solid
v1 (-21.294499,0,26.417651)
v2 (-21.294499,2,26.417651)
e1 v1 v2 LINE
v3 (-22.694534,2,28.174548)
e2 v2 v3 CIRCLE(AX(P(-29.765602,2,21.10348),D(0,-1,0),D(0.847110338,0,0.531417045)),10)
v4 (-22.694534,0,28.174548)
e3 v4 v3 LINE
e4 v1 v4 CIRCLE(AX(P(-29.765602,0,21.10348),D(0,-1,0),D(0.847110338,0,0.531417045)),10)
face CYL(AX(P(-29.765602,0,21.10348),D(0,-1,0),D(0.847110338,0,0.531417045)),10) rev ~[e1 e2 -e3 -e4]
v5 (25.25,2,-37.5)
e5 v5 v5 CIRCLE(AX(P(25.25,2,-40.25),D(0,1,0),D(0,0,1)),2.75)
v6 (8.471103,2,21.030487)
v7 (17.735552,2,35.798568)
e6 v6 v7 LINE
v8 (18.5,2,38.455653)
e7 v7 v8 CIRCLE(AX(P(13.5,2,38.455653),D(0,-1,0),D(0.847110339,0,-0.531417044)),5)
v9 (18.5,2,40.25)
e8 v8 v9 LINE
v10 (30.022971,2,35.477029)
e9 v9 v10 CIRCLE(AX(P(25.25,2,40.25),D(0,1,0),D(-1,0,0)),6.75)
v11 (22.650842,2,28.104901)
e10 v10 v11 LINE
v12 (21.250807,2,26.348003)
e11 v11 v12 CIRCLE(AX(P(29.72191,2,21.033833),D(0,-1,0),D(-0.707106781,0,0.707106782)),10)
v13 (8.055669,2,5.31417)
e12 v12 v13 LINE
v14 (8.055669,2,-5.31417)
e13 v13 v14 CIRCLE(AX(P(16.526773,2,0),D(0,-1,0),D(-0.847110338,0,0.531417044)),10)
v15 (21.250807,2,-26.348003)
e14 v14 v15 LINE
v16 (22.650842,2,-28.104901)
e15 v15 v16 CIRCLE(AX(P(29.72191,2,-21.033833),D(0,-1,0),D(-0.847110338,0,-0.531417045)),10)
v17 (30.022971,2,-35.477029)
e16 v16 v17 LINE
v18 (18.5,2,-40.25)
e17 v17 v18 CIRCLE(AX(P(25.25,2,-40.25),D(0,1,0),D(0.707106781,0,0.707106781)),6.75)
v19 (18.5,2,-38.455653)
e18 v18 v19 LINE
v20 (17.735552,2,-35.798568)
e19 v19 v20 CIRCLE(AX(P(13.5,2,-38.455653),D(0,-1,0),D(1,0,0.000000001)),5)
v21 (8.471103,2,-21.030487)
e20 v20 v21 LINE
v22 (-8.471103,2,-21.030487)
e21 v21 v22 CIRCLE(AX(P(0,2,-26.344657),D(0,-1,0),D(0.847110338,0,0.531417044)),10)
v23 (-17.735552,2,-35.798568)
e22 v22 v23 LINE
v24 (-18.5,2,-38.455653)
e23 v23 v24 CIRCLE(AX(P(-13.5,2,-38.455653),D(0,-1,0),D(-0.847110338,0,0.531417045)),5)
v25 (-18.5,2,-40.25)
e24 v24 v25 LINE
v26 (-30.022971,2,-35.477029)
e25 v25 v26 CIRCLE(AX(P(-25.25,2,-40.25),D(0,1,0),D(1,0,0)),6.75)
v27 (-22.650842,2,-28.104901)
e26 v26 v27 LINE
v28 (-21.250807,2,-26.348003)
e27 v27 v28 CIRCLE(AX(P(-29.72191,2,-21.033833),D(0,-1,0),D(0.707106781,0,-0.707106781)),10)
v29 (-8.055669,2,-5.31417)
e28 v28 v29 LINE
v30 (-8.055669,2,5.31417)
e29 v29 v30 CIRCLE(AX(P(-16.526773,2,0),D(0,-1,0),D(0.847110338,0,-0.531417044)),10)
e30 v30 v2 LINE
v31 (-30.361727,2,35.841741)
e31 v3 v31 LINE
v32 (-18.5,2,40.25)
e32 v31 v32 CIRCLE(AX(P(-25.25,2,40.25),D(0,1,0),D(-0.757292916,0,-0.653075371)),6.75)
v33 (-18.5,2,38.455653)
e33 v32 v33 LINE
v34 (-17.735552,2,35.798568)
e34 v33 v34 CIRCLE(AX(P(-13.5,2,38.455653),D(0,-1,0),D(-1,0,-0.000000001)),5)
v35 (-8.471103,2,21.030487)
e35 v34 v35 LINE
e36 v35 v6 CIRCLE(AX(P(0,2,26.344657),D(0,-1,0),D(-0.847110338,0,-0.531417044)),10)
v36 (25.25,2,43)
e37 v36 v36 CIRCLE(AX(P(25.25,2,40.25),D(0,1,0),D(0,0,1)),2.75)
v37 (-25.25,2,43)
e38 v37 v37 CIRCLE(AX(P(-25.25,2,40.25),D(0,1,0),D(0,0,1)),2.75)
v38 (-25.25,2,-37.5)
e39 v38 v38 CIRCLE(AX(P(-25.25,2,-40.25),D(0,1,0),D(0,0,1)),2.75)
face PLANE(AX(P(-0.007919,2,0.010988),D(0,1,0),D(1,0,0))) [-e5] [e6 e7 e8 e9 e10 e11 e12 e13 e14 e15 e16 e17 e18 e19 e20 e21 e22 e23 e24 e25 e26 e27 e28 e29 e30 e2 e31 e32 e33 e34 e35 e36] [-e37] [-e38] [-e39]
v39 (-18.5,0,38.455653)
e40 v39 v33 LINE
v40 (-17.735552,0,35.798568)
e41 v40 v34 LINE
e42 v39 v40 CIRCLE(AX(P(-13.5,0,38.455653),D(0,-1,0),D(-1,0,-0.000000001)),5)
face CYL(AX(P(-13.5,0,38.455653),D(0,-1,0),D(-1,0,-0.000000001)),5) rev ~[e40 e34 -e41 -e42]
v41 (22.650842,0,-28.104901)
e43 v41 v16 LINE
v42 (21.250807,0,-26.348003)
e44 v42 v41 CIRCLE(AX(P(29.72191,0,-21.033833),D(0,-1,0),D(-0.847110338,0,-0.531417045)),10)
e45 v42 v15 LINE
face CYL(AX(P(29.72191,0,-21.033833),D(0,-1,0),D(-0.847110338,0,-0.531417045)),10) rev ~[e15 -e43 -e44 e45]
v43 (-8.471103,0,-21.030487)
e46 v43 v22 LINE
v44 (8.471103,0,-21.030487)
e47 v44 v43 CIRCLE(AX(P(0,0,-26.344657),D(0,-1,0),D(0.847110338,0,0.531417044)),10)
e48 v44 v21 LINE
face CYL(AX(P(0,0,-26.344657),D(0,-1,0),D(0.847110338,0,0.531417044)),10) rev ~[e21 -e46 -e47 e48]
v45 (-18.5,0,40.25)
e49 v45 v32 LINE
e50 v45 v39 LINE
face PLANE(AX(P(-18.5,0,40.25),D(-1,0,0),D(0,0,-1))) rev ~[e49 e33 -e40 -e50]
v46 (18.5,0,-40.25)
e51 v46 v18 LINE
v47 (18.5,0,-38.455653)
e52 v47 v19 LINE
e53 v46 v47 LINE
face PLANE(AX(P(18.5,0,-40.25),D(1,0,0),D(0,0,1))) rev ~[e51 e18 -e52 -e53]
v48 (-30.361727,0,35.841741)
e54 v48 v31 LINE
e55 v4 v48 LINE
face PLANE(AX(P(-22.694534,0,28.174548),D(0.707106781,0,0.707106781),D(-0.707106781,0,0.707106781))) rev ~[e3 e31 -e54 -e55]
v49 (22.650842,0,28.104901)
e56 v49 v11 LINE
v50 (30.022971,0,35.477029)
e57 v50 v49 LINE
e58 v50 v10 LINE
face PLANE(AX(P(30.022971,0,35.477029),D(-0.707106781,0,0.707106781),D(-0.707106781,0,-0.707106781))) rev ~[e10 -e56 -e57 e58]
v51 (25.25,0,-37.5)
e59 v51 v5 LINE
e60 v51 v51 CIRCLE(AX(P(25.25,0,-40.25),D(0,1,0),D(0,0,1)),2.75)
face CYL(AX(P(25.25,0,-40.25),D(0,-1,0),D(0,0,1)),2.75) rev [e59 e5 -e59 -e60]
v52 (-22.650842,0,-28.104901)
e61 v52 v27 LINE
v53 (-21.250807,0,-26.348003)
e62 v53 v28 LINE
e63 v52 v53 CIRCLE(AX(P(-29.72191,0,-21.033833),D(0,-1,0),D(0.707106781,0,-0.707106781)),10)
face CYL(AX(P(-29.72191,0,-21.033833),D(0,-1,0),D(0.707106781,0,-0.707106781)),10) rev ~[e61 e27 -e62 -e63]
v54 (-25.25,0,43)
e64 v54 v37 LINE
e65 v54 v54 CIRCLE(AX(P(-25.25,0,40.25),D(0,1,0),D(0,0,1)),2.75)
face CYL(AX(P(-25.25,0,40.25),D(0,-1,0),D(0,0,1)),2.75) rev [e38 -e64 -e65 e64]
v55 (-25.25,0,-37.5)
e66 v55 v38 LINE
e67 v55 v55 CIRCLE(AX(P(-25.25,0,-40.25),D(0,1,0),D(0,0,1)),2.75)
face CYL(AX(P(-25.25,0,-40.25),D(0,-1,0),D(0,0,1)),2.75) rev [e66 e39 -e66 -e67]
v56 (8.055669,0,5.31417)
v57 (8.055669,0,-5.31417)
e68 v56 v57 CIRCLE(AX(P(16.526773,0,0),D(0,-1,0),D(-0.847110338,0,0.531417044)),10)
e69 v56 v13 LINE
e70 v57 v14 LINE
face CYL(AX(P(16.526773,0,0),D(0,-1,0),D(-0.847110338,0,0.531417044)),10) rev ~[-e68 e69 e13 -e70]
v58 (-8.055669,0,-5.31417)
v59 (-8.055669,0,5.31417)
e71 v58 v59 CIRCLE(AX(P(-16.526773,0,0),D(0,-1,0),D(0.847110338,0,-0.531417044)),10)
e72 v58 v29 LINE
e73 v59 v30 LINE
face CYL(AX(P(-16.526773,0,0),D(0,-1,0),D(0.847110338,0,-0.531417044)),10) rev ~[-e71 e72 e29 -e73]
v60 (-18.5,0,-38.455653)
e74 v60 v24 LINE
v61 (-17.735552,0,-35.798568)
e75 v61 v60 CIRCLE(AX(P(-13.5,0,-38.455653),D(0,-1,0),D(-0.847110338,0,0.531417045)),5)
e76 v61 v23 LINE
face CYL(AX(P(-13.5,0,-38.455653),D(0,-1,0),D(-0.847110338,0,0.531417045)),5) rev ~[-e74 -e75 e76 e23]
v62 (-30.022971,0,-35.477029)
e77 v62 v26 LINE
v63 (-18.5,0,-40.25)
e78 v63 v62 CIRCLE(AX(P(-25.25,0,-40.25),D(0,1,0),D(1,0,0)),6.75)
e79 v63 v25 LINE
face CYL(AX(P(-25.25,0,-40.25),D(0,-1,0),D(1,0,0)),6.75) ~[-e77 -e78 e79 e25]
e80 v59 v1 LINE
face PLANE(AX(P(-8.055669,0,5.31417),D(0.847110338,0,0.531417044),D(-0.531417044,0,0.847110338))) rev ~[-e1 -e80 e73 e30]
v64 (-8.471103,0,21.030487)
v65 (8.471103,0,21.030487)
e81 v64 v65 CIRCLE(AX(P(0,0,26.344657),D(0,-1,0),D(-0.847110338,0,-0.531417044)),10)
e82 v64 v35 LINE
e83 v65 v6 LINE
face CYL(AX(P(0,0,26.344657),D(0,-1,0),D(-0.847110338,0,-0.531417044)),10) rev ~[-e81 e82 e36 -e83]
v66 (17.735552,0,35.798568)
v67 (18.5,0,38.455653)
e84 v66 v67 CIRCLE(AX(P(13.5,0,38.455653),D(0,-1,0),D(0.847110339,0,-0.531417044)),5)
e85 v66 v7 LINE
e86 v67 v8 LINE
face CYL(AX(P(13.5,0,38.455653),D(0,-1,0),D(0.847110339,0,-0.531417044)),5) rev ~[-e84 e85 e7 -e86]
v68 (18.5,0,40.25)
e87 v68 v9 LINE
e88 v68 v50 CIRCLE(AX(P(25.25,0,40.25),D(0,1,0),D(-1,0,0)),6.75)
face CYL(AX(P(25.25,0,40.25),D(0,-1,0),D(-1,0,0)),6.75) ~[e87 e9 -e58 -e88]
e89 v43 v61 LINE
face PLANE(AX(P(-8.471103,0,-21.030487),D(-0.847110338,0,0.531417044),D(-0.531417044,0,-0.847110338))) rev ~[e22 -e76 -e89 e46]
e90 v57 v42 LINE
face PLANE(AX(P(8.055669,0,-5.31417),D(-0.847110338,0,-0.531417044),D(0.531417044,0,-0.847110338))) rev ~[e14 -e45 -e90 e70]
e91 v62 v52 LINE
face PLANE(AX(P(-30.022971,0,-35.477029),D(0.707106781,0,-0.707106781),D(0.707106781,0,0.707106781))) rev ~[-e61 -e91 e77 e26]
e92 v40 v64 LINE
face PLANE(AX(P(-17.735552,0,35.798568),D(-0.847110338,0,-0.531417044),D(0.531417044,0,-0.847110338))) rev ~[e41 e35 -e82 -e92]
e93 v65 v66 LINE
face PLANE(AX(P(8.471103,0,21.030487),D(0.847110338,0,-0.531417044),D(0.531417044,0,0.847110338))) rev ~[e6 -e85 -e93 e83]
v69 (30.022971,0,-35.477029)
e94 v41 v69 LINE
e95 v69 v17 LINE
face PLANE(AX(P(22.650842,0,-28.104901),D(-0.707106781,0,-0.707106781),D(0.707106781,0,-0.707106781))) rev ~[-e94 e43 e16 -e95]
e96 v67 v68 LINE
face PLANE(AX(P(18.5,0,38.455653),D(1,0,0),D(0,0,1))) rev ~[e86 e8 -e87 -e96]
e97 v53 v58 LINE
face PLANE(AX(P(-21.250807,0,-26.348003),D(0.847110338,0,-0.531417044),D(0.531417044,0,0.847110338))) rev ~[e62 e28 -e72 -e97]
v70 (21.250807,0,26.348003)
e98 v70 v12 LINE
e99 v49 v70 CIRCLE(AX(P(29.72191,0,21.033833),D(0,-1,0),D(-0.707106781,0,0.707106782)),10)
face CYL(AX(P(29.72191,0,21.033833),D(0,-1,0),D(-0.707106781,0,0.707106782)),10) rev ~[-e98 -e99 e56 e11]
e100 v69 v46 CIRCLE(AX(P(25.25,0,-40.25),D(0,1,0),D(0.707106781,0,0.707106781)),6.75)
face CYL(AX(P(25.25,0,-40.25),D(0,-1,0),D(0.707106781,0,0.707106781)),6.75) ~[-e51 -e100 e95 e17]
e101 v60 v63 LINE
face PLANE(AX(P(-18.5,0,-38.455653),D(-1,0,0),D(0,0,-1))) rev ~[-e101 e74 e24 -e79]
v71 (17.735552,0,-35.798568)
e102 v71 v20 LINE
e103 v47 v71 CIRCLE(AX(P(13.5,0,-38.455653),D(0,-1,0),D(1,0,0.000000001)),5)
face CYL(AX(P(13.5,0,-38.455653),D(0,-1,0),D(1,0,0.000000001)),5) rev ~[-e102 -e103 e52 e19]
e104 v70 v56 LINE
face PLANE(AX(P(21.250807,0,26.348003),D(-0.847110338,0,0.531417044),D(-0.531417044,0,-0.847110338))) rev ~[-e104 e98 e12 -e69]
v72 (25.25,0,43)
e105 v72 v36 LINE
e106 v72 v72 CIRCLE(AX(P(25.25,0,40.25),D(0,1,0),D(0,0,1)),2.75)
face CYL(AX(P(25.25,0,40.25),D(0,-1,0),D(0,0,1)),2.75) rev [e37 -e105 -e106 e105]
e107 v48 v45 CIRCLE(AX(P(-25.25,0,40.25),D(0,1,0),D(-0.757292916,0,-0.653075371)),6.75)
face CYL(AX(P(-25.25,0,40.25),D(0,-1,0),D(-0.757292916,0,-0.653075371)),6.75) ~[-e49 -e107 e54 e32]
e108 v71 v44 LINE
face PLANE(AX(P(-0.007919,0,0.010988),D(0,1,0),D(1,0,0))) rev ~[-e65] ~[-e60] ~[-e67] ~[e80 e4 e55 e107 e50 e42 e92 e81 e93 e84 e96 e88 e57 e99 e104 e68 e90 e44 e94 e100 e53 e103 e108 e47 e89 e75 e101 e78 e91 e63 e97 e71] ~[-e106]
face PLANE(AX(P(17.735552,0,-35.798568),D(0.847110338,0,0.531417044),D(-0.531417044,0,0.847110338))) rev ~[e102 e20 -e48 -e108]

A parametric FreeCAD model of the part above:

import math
import FreeCAD as App
import Part
import Sketcher
from FreeCAD import Vector
Q = App.Units.Quantity

doc = App.newDocument("Part")
body = doc.addObject("PartDesign::Body", "Body")

sketch1 = doc.addObject("Sketcher::SketchObject", "Sketch")
body.addObject(sketch1)
sketch1.AttachmentSupport = (doc.XZ_Plane, [""])
sketch1.MapMode = "FlatFace"
sketch1.addGeometry([
    Part.ArcOfCircle(Part.Circle(Vector(-29.7, -21, 0), Vector(0, 0, 1), 10), math.radians(-45), math.radians(-32.1)),
    Part.LineSegment(Vector(-21.3, -26.3, 0), Vector(-8.1, -5.3, 0)),
    Part.ArcOfCircle(Part.Circle(Vector(-16.5, 0, 0), Vector(0, 0, 1), 10), math.radians(-32), math.radians(32)),
    Part.LineSegment(Vector(-8.1, 5.3, 0), Vector(-21.3, 26.4, 0)),
    Part.ArcOfCircle(Part.Circle(Vector(-29.8, 21.1, 0), Vector(0, 0, 1), 10), math.radians(32.1), math.radians(45)),
    Part.LineSegment(Vector(-22.7, 28.2, 0), Vector(-30.4, 35.8, 0)),
    Part.ArcOfCircle(Part.Circle(Vector(-25.2, 40.2, 0), Vector(0, 0, 1), 6.8), math.radians(0), math.radians(221)),
    Part.LineSegment(Vector(-18.5, 40.2, 0), Vector(-18.5, 38.5, 0)),
    Part.ArcOfCircle(Part.Circle(Vector(-13.5, 38.5, 0), Vector(0, 0, 1), 5), math.radians(-180), math.radians(-148)),
    Part.LineSegment(Vector(-17.7, 35.8, 0), Vector(-8.5, 21, 0)),
    Part.ArcOfCircle(Part.Circle(Vector(0, 26.3, 0), Vector(0, 0, 1), 10), math.radians(-148), math.radians(-32)),
    Part.LineSegment(Vector(8.5, 21, 0), Vector(17.7, 35.8, 0)),
    Part.ArcOfCircle(Part.Circle(Vector(13.5, 38.5, 0), Vector(0, 0, 1), 5), math.radians(-32), math.radians(0)),
    Part.LineSegment(Vector(18.5, 38.5, 0), Vector(18.5, 40.2, 0)),
    Part.ArcOfCircle(Part.Circle(Vector(25.2, 40.2, 0), Vector(0, 0, 1), 6.8), math.radians(-45), math.radians(180)),
    Part.LineSegment(Vector(30, 35.5, 0), Vector(22.7, 28.1, 0)),
    Part.ArcOfCircle(Part.Circle(Vector(29.7, 21, 0), Vector(0, 0, 1), 10), math.radians(135), math.radians(147.9)),
    Part.LineSegment(Vector(21.3, 26.3, 0), Vector(8.1, 5.3, 0)),
    Part.ArcOfCircle(Part.Circle(Vector(16.5, 0, 0), Vector(0, 0, 1), 10), math.radians(148), math.radians(212)),
    Part.LineSegment(Vector(8.1, -5.3, 0), Vector(21.3, -26.3, 0)),
    Part.ArcOfCircle(Part.Circle(Vector(29.7, -21, 0), Vector(0, 0, 1), 10), math.radians(-147.9), math.radians(-135)),
    Part.LineSegment(Vector(22.7, -28.1, 0), Vector(30, -35.5, 0)),
    Part.ArcOfCircle(Part.Circle(Vector(25.2, -40.2, 0), Vector(0, 0, 1), 6.8), math.radians(180), math.radians(405)),
    Part.LineSegment(Vector(18.5, -40.2, 0), Vector(18.5, -38.5, 0)),
    Part.ArcOfCircle(Part.Circle(Vector(13.5, -38.5, 0), Vector(0, 0, 1), 5), math.radians(0), math.radians(32)),
    Part.LineSegment(Vector(17.7, -35.8, 0), Vector(8.5, -21, 0)),
    Part.ArcOfCircle(Part.Circle(Vector(0, -26.3, 0), Vector(0, 0, 1), 10), math.radians(32), math.radians(148)),
    Part.LineSegment(Vector(-8.5, -21, 0), Vector(-17.7, -35.8, 0)),
    Part.ArcOfCircle(Part.Circle(Vector(-13.5, -38.5, 0), Vector(0, 0, 1), 5), math.radians(148), math.radians(180)),
    Part.LineSegment(Vector(-18.5, -38.5, 0), Vector(-18.5, -40.2, 0)),
    Part.ArcOfCircle(Part.Circle(Vector(-25.2, -40.2, 0), Vector(0, 0, 1), 6.8), math.radians(135), math.radians(360)),
    Part.LineSegment(Vector(-30, -35.5, 0), Vector(-22.7, -28.1, 0)),
    Part.Circle(Vector(-25.2, 40.2, 0), Vector(0, 0, 1), 2.8),
    Part.Circle(Vector(25.2, 40.2, 0), Vector(0, 0, 1), 2.8),
    Part.Circle(Vector(-25.2, -40.2, 0), Vector(0, 0, 1), 2.8),
    Part.Circle(Vector(25.2, -40.2, 0), Vector(0, 0, 1), 2.8),
], False)
sketch1.addConstraint([
    Sketcher.Constraint("Tangent", 0, 2, 1, 1),
    Sketcher.Constraint("Tangent", 1, 2, 2, 1),
    Sketcher.Constraint("Tangent", 2, 2, 3, 1),
    Sketcher.Constraint("Tangent", 3, 2, 4, 1),
    Sketcher.Constraint("Tangent", 4, 2, 5, 1),
    Sketcher.Constraint("Coincident", 5, 2, 6, 2),
    Sketcher.Constraint("Tangent", 6, 1, 7, 1),
    Sketcher.Constraint("Tangent", 7, 2, 8, 1),
    Sketcher.Constraint("Tangent", 8, 2, 9, 1),
    Sketcher.Constraint("Tangent", 9, 2, 10, 1),
    Sketcher.Constraint("Tangent", 10, 2, 11, 1),
    Sketcher.Constraint("Tangent", 11, 2, 12, 1),
    Sketcher.Constraint("Tangent", 12, 2, 13, 1),
    Sketcher.Constraint("Tangent", 13, 2, 14, 2),
    Sketcher.Constraint("Tangent", 14, 1, 15, 1),
    Sketcher.Constraint("Tangent", 15, 2, 16, 1),
    Sketcher.Constraint("Tangent", 16, 2, 17, 1),
    Sketcher.Constraint("Tangent", 17, 2, 18, 1),
    Sketcher.Constraint("Tangent", 18, 2, 19, 1),
    Sketcher.Constraint("Tangent", 19, 2, 20, 1),
    Sketcher.Constraint("Tangent", 20, 2, 21, 1),
    Sketcher.Constraint("Tangent", 21, 2, 22, 2),
    Sketcher.Constraint("Tangent", 22, 1, 23, 1),
    Sketcher.Constraint("Tangent", 23, 2, 24, 1),
    Sketcher.Constraint("Tangent", 24, 2, 25, 1),
    Sketcher.Constraint("Tangent", 25, 2, 26, 1),
    Sketcher.Constraint("Tangent", 26, 2, 27, 1),
    Sketcher.Constraint("Tangent", 27, 2, 28, 1),
    Sketcher.Constraint("Tangent", 28, 2, 29, 1),
    Sketcher.Constraint("Tangent", 29, 2, 30, 2),
    Sketcher.Constraint("Tangent", 30, 1, 31, 1),
    Sketcher.Constraint("Tangent", 31, 2, 0, 1),
    Sketcher.Constraint("Vertical", 7),
    Sketcher.Constraint("Vertical", 13),
    Sketcher.Constraint("Vertical", 23),
    Sketcher.Constraint("Vertical", 29),
    Sketcher.Constraint("Coincident", 32, 3, 6, 3),
    Sketcher.Constraint("Coincident", 33, 3, 14, 3),
    Sketcher.Constraint("Coincident", 34, 3, 30, 3),
    Sketcher.Constraint("Coincident", 35, 3, 22, 3),
    Sketcher.Constraint("Equal", 0, 2),
    Sketcher.Constraint("Equal", 2, 4),
    Sketcher.Constraint("Equal", 4, 10),
    Sketcher.Constraint("Equal", 8, 12),
    Sketcher.Constraint("Equal", 6, 14),
    Sketcher.Constraint("Equal", 10, 16),
    Sketcher.Constraint("Equal", 16, 18),
    Sketcher.Constraint("Equal", 18, 20),
    Sketcher.Constraint("Equal", 14, 22),
    Sketcher.Constraint("Equal", 12, 24),
    Sketcher.Constraint("Equal", 20, 26),
    Sketcher.Constraint("Equal", 24, 28),
    Sketcher.Constraint("Equal", 22, 30),
    Sketcher.Constraint("Equal", 32, 33),
    Sketcher.Constraint("Equal", 33, 34),
    Sketcher.Constraint("Equal", 34, 35),
    Sketcher.Constraint("Symmetric", 0, 3, 16, 3, -1, 1),
    Sketcher.Constraint("Symmetric", 2, 3, 18, 3, -1, 1),
    Sketcher.Constraint("Symmetric", 6, 3, 22, 3, -1, 1),
    Sketcher.Constraint("Symmetric", 10, 3, 26, 3, -1, 1),
    Sketcher.Constraint("Symmetric", 12, 3, 28, 3, -1, 1),
    Sketcher.Constraint("Symmetric", 8, 3, 12, 3, -2),
    Sketcher.Constraint("Symmetric", 0, 3, 20, 3, -2),
    Sketcher.Constraint("Symmetric", 2, 2, 17, 2, -2),
    Sketcher.Constraint("Symmetric", 25, 2, 26, 2, -2),
    Sketcher.Constraint("Parallel", 3, 9),
    Sketcher.Constraint("Perpendicular", 5, 15),
    Sketcher.Constraint("Perpendicular", 15, 21),
    Sketcher.Constraint("Perpendicular", 21, 31),
    Sketcher.Constraint("Horizontal", 6, 3, 14, 3),
    Sketcher.Constraint("Radius", 0, Q("10 mm")),
    Sketcher.Constraint("Radius", 8, Q("5 mm")),
    Sketcher.Constraint("Diameter", 32, Q("5.5 mm")),
    Sketcher.Constraint("Radius", 6, Q("6.75 mm")),
    Sketcher.Constraint("DistanceX", 8, 3, 12, 3, Q("27 mm")),
    Sketcher.Constraint("DistanceY", -1, 1, 6, 3, Q("40.25 mm")),
    Sketcher.Constraint("Distance", 1, Q("24.830098 mm")),
    Sketcher.Constraint("DistanceX", 3, 2, -1, 1, Q("21.294499 mm")),
    Sketcher.Constraint("DistanceY", -1, 1, 15, 2, Q("28.104901 mm")),
    Sketcher.Constraint("DistanceY", 7, 2, 7, 1, Q("1.794347 mm")),
])
pad1 = doc.addObject("PartDesign::Pad", "Pad")
body.addObject(pad1)
pad1.Profile = sketch1
pad1.Length = 2
pad1.Reversed = True

doc.recompute()
